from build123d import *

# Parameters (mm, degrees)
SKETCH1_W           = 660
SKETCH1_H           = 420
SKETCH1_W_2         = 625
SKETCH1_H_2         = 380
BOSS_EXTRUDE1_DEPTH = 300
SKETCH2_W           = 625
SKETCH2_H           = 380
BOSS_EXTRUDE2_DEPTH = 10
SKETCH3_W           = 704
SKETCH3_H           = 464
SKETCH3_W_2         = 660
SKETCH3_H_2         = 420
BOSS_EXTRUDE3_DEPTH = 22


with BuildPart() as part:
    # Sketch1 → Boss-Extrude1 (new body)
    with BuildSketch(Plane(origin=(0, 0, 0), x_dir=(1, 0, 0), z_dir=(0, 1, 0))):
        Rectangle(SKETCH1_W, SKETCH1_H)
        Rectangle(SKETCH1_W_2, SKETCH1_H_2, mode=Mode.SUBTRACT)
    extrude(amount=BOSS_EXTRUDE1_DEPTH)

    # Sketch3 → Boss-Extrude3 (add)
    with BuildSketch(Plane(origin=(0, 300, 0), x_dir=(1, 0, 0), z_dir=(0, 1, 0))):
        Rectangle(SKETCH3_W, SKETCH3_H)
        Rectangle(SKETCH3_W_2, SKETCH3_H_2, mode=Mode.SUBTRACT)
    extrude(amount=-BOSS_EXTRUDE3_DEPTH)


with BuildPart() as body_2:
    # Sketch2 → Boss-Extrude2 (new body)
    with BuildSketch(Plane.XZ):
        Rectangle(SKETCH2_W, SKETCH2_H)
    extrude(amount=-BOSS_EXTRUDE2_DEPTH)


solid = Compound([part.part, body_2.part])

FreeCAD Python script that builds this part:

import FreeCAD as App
import Part
import Sketcher
from FreeCAD import Vector
Q = App.Units.Quantity

doc = App.newDocument("Part")
params = doc.addObject("Spreadsheet::Sheet", "Params")
for row, (alias, value) in enumerate([
    ("sketch1_width", "660 mm"),
    ("sketch1_width2", "625 mm"),
    ("sketch1_height", "420 mm"),
    ("sketch1_height2", "380 mm"),
    ("pad1_length", "300 mm"),
    ("sketch2_width", "704 mm"),
    ("sketch2_width2", "660 mm"),
    ("sketch2_height", "464 mm"),
    ("sketch2_height2", "420 mm"),
    ("pad2_length", "22 mm"),
    ("sketch3_width", "625 mm"),
    ("sketch3_height", "380 mm"),
    ("pad3_length", "10 mm"),
], start=1):
    params.set(f"A{row}", alias)
    params.set(f"B{row}", "=" + value)
    params.setAlias(f"B{row}", alias)

body = doc.addObject("PartDesign::Body", "Body")

# Sketch on XZ plane
sketch1 = body.newObject("Sketcher::SketchObject", "Sketch")
sketch1.AttachmentSupport = (doc.getObject("XZ_Plane"), [""])
sketch1.MapMode = "FlatFace"
sketch1.addGeometry(Part.LineSegment(Vector(-330, -210, 0), Vector(-330, 210, 0)), False)
sketch1.addGeometry(Part.LineSegment(Vector(-330, 210, 0), Vector(330, 210, 0)), False)
sketch1.addGeometry(Part.LineSegment(Vector(330, 210, 0), Vector(330, -210, 0)), False)
sketch1.addGeometry(Part.LineSegment(Vector(330, -210, 0), Vector(-330, -210, 0)), False)
sketch1.addGeometry(Part.LineSegment(Vector(312, 190, 0), Vector(-312, 190, 0)), False)
sketch1.addGeometry(Part.LineSegment(Vector(-312, 190, 0), Vector(-312, -190, 0)), False)
sketch1.addGeometry(Part.LineSegment(Vector(-312, -190, 0), Vector(312, -190, 0)), False)
sketch1.addGeometry(Part.LineSegment(Vector(312, -190, 0), Vector(312, 190, 0)), False)
sketch1.addConstraint(Sketcher.Constraint("Coincident", 0, 2, 1, 1))
sketch1.addConstraint(Sketcher.Constraint("Coincident", 1, 2, 2, 1))
sketch1.addConstraint(Sketcher.Constraint("Coincident", 2, 2, 3, 1))
sketch1.addConstraint(Sketcher.Constraint("Coincident", 3, 2, 0, 1))
sketch1.addConstraint(Sketcher.Constraint("Coincident", 4, 2, 5, 1))
sketch1.addConstraint(Sketcher.Constraint("Coincident", 5, 2, 6, 1))
sketch1.addConstraint(Sketcher.Constraint("Coincident", 6, 2, 7, 1))
sketch1.addConstraint(Sketcher.Constraint("Coincident", 7, 2, 4, 1))
sketch1.addConstraint(Sketcher.Constraint("Vertical", 0))
sketch1.addConstraint(Sketcher.Constraint("Horizontal", 1))
sketch1.addConstraint(Sketcher.Constraint("Vertical", 2))
sketch1.addConstraint(Sketcher.Constraint("Horizontal", 3))
sketch1.addConstraint(Sketcher.Constraint("Horizontal", 4))
sketch1.addConstraint(Sketcher.Constraint("Vertical", 5))
sketch1.addConstraint(Sketcher.Constraint("Horizontal", 6))
sketch1.addConstraint(Sketcher.Constraint("Vertical", 7))
sketch1.addConstraint(Sketcher.Constraint("Symmetric", 0, 2, 2, 2, -1, 1))
sketch1.addConstraint(Sketcher.Constraint("Symmetric", 4, 2, 6, 2, -1, 1))
sketch1.addConstraint(Sketcher.Constraint("DistanceX", 1, 1, 1, 2, Q("660 mm")))
sketch1.addConstraint(Sketcher.Constraint("DistanceX", 4, 2, 4, 1, Q("625 mm")))
sketch1.addConstraint(Sketcher.Constraint("DistanceY", 0, 1, 0, 2, Q("420 mm")))
sketch1.addConstraint(Sketcher.Constraint("DistanceY", 5, 2, 5, 1, Q("380 mm")))
sketch1.setExpression("Constraints[18]", "Params.sketch1_width")
sketch1.setExpression("Constraints[19]", "Params.sketch1_width2")
sketch1.setExpression("Constraints[20]", "Params.sketch1_height")
sketch1.setExpression("Constraints[21]", "Params.sketch1_height2")
pad1 = body.newObject("PartDesign::Pad", "Pad")
pad1.Profile = sketch1
pad1.setExpression("Length", "Params.pad1_length")
pad1.Reversed = True

# Sketch on XZ plane
sketch2 = body.newObject("Sketcher::SketchObject", "Sketch001")
sketch2.AttachmentSupport = (doc.getObject("XZ_Plane"), [""])
sketch2.MapMode = "FlatFace"
sketch2.AttachmentOffset = App.Placement(Vector(0, 0, -300), App.Rotation())
sketch2.addGeometry(Part.LineSegment(Vector(-352, -232, 0), Vector(-352, 232, 0)), False)
sketch2.addGeometry(Part.LineSegment(Vector(-352, 232, 0), Vector(352, 232, 0)), False)
sketch2.addGeometry(Part.LineSegment(Vector(352, 232, 0), Vector(352, -232, 0)), False)
sketch2.addGeometry(Part.LineSegment(Vector(352, -232, 0), Vector(-352, -232, 0)), False)
sketch2.addGeometry(Part.LineSegment(Vector(330, 210, 0), Vector(-330, 210, 0)), False)
sketch2.addGeometry(Part.LineSegment(Vector(-330, 210, 0), Vector(-330, -210, 0)), False)
sketch2.addGeometry(Part.LineSegment(Vector(-330, -210, 0), Vector(330, -210, 0)), False)
sketch2.addGeometry(Part.LineSegment(Vector(330, -210, 0), Vector(330, 210, 0)), False)
sketch2.addConstraint(Sketcher.Constraint("Coincident", 0, 2, 1, 1))
sketch2.addConstraint(Sketcher.Constraint("Coincident", 1, 2, 2, 1))
sketch2.addConstraint(Sketcher.Constraint("Coincident", 2, 2, 3, 1))
sketch2.addConstraint(Sketcher.Constraint("Coincident", 3, 2, 0, 1))
sketch2.addConstraint(Sketcher.Constraint("Coincident", 4, 2, 5, 1))
sketch2.addConstraint(Sketcher.Constraint("Coincident", 5, 2, 6, 1))
sketch2.addConstraint(Sketcher.Constraint("Coincident", 6, 2, 7, 1))
sketch2.addConstraint(Sketcher.Constraint("Coincident", 7, 2, 4, 1))
sketch2.addConstraint(Sketcher.Constraint("Vertical", 0))
sketch2.addConstraint(Sketcher.Constraint("Horizontal", 1))
sketch2.addConstraint(Sketcher.Constraint("Vertical", 2))
sketch2.addConstraint(Sketcher.Constraint("Horizontal", 3))
sketch2.addConstraint(Sketcher.Constraint("Horizontal", 4))
sketch2.addConstraint(Sketcher.Constraint("Vertical", 5))
sketch2.addConstraint(Sketcher.Constraint("Horizontal", 6))
sketch2.addConstraint(Sketcher.Constraint("Vertical", 7))
sketch2.addConstraint(Sketcher.Constraint("Symmetric", 0, 2, 2, 2, -1, 1))
sketch2.addConstraint(Sketcher.Constraint("Symmetric", 4, 2, 6, 2, -1, 1))
sketch2.addConstraint(Sketcher.Constraint("DistanceX", 1, 1, 1, 2, Q("704 mm")))
sketch2.addConstraint(Sketcher.Constraint("DistanceX", 4, 2, 4, 1, Q("660 mm")))
sketch2.addConstraint(Sketcher.Constraint("DistanceY", 0, 1, 0, 2, Q("464 mm")))
sketch2.addConstraint(Sketcher.Constraint("DistanceY", 5, 2, 5, 1, Q("420 mm")))
sketch2.setExpression("Constraints[18]", "Params.sketch2_width")
sketch2.setExpression("Constraints[19]", "Params.sketch2_width2")
sketch2.setExpression("Constraints[20]", "Params.sketch2_height")
sketch2.setExpression("Constraints[21]", "Params.sketch2_height2")
pad2 = body.newObject("PartDesign::Pad", "Pad001")
pad2.Profile = sketch2
pad2.setExpression("Length", "Params.pad2_length")
body2 = doc.addObject("PartDesign::Body", "Body001")

# Sketch on XZ plane
sketch3 = body2.newObject("Sketcher::SketchObject", "Sketch002")
sketch3.AttachmentSupport = (doc.getObject("XZ_Plane001"), [""])
sketch3.MapMode = "FlatFace"
sketch3.addGeometry(Part.LineSegment(Vector(-312, 190, 0), Vector(-312, -190, 0)), False)
sketch3.addGeometry(Part.LineSegment(Vector(-312, -190, 0), Vector(312, -190, 0)), False)
sketch3.addGeometry(Part.LineSegment(Vector(312, -190, 0), Vector(312, 190, 0)), False)
sketch3.addGeometry(Part.LineSegment(Vector(312, 190, 0), Vector(-312, 190, 0)), False)
sketch3.addConstraint(Sketcher.Constraint("Coincident", 0, 2, 1, 1))
sketch3.addConstraint(Sketcher.Constraint("Coincident", 1, 2, 2, 1))
sketch3.addConstraint(Sketcher.Constraint("Coincident", 2, 2, 3, 1))
sketch3.addConstraint(Sketcher.Constraint("Coincident", 3, 2, 0, 1))
sketch3.addConstraint(Sketcher.Constraint("Vertical", 0))
sketch3.addConstraint(Sketcher.Constraint("Horizontal", 1))
sketch3.addConstraint(Sketcher.Constraint("Vertical", 2))
sketch3.addConstraint(Sketcher.Constraint("Horizontal", 3))
sketch3.addConstraint(Sketcher.Constraint("Symmetric", 0, 2, 2, 2, -1, 1))
sketch3.addConstraint(Sketcher.Constraint("DistanceX", 1, 1, 1, 2, Q("625 mm")))
sketch3.addConstraint(Sketcher.Constraint("DistanceY", 0, 2, 0, 1, Q("380 mm")))
sketch3.setExpression("Constraints[9]", "Params.sketch3_width")
sketch3.setExpression("Constraints[10]", "Params.sketch3_height")
pad3 = body2.newObject("PartDesign::Pad", "Pad002")
pad3.Profile = sketch3
pad3.setExpression("Length", "Params.pad3_length")
pad3.Reversed = True

doc.recompute()
